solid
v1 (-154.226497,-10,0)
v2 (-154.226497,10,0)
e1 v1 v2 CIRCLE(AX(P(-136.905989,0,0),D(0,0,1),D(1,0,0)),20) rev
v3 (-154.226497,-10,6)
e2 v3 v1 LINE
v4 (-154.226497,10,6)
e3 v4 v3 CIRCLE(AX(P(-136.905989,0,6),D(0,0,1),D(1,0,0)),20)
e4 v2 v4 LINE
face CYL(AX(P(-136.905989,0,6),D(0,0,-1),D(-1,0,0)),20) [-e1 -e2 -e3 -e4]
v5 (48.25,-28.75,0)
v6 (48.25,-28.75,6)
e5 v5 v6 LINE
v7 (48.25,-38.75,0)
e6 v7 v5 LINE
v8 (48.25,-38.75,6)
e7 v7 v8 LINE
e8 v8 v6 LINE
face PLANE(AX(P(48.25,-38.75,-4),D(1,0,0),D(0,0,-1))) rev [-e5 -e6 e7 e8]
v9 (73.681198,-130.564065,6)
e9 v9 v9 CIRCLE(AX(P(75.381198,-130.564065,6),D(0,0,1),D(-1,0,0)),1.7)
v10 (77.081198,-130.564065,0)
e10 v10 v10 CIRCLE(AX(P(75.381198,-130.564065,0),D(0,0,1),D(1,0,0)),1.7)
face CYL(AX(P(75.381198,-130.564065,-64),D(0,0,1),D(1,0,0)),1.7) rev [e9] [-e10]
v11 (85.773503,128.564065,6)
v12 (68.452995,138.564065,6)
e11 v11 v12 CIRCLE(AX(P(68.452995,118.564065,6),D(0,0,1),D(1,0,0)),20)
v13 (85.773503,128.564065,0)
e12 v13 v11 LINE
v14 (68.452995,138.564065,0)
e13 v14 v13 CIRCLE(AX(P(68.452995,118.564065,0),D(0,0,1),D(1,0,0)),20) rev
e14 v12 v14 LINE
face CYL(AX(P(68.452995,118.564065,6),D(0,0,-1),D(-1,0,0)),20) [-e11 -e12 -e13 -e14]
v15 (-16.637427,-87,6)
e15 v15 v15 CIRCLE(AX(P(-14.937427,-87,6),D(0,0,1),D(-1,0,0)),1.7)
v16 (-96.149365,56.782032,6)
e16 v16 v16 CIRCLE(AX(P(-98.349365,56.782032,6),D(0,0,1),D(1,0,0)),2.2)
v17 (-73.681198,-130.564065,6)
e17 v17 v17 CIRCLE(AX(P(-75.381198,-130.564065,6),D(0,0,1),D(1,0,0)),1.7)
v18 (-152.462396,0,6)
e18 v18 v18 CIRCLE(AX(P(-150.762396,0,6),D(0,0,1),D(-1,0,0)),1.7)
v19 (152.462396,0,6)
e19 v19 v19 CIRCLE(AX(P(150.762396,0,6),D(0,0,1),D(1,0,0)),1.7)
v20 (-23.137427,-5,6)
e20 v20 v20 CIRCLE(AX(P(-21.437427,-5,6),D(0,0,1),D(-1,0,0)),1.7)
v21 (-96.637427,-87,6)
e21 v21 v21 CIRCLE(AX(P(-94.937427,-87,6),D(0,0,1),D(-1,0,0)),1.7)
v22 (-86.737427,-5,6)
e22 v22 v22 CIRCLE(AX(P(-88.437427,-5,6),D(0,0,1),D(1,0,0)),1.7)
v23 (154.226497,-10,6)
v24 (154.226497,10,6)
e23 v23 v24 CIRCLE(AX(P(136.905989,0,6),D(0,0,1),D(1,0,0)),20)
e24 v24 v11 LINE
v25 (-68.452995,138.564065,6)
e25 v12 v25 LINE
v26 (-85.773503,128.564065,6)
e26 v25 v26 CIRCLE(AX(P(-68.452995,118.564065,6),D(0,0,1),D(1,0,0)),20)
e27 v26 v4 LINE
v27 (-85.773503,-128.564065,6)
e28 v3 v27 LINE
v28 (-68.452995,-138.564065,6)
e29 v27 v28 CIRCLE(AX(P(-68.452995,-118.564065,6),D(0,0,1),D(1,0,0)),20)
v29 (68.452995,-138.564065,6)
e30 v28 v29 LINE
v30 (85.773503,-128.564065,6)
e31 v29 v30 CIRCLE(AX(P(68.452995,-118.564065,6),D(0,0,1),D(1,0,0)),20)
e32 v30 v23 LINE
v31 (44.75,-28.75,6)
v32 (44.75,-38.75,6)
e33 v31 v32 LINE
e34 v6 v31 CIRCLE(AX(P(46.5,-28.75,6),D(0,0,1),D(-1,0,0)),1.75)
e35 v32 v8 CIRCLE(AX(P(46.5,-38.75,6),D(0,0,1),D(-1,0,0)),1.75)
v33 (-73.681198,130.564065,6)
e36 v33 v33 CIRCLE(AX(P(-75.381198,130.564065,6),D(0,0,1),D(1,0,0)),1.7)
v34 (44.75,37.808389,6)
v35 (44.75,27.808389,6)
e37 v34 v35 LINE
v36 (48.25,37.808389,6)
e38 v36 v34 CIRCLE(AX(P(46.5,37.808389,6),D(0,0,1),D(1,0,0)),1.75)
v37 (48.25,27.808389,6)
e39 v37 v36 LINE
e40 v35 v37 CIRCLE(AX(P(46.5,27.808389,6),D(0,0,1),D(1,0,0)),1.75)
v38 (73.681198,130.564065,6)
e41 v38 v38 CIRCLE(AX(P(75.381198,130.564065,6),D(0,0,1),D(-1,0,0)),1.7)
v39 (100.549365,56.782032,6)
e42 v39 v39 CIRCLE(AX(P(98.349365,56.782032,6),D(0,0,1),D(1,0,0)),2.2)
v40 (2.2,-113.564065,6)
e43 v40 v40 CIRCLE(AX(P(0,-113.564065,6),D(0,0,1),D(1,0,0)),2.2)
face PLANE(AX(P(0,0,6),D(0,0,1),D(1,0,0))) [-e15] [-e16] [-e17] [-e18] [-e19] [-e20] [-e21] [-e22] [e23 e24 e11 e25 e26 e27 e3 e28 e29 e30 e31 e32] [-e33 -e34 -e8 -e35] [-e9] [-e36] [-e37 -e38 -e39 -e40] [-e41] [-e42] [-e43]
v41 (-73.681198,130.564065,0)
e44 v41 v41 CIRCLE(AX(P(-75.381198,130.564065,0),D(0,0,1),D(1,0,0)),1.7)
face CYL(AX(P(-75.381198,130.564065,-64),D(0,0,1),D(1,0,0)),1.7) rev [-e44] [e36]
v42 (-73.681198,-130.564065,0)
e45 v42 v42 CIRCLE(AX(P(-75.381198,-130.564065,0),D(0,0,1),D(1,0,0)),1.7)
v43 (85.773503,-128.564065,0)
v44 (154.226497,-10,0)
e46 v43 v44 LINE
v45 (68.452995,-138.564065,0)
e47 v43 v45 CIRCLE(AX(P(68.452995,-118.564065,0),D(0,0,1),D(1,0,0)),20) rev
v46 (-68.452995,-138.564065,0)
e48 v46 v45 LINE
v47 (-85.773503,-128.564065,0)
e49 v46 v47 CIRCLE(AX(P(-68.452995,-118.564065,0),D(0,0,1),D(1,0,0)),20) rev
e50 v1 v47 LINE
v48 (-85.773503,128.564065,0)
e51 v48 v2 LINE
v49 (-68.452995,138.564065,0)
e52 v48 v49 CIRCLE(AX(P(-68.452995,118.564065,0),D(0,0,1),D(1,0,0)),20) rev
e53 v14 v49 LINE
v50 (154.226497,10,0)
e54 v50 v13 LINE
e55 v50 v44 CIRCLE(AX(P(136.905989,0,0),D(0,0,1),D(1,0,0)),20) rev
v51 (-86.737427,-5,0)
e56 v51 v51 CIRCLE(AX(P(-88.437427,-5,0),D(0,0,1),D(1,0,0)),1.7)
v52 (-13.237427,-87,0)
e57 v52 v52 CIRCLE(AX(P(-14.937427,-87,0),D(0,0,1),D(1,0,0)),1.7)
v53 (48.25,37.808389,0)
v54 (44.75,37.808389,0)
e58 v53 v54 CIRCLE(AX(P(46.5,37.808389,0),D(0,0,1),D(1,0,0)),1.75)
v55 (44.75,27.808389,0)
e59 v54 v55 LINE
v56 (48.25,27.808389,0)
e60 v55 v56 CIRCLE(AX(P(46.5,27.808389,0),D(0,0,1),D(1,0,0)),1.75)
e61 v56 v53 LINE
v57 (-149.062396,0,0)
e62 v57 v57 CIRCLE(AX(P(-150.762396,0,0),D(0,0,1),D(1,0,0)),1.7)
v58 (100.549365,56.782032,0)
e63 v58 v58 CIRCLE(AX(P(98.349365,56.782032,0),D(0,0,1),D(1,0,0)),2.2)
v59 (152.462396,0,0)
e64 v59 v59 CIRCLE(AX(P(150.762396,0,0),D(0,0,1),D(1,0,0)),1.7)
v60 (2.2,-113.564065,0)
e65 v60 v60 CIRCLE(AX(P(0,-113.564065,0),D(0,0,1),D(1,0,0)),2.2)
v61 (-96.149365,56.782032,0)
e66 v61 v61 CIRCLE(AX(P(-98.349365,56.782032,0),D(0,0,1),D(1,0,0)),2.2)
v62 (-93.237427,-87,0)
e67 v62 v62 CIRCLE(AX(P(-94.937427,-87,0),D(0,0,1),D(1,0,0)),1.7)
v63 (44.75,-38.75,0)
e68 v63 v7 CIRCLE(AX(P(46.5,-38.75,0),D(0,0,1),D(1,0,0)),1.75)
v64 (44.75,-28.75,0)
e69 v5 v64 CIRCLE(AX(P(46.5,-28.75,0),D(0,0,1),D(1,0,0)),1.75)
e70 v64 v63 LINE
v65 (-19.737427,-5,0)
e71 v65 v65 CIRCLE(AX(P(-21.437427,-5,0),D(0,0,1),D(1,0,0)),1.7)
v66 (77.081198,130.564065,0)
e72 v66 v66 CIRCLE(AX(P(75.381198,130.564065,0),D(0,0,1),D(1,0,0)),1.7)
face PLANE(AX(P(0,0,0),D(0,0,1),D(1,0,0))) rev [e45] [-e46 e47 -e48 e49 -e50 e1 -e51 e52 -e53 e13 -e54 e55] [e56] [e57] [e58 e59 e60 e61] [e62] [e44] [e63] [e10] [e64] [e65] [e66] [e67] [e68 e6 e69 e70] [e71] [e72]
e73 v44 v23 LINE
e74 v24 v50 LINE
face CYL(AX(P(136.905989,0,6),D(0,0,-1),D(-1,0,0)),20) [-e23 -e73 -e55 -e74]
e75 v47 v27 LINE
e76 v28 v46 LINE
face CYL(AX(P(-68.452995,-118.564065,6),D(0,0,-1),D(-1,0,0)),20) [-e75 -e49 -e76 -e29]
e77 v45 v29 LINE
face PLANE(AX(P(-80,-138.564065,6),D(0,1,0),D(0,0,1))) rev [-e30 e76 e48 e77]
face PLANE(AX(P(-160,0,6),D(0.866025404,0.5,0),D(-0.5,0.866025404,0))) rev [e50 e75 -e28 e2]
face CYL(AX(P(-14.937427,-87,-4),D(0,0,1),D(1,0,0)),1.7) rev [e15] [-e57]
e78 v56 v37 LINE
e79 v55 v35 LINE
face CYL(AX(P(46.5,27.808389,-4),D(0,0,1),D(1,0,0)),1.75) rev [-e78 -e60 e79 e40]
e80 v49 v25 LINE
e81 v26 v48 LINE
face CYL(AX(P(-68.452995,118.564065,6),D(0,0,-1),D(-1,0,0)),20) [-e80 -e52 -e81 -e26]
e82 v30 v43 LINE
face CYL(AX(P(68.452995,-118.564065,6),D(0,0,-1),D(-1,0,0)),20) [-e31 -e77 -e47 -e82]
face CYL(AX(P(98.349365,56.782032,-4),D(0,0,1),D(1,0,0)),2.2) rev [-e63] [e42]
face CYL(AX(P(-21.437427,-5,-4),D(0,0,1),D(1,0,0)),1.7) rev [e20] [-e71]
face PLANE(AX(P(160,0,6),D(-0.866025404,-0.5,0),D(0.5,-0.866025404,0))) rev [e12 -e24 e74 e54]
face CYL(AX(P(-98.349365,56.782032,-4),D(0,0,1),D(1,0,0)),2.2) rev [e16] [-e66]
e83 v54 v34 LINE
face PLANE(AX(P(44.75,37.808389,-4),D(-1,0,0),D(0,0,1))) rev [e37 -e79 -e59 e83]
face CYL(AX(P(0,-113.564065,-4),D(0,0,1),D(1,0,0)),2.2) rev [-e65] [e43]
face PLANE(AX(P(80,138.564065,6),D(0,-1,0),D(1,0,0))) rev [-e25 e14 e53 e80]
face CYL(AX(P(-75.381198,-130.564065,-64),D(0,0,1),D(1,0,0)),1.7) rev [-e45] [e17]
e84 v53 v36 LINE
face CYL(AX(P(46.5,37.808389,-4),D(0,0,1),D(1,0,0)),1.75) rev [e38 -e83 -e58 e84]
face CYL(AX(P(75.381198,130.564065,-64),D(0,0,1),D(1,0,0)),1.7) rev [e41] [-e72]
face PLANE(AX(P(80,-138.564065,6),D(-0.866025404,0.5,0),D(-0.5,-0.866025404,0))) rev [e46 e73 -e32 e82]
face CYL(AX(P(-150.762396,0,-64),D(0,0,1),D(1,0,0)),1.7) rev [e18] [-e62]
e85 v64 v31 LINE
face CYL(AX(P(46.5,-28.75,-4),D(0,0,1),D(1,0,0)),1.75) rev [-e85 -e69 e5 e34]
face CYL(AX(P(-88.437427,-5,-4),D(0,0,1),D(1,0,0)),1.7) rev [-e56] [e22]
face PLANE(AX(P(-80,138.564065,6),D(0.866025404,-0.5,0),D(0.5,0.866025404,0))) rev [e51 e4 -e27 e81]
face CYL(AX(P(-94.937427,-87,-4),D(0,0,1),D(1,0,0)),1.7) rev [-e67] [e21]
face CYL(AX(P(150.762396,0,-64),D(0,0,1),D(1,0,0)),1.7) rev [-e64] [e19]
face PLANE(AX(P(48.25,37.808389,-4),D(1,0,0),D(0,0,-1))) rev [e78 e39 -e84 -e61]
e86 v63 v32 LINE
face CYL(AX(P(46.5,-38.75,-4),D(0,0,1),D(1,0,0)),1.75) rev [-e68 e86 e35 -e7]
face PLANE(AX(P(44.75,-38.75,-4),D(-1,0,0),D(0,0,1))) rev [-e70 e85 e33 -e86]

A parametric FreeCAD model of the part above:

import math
import FreeCAD as App
import Part
import Sketcher
Q = App.Units.Quantity


def edges_at(feature, points):
    """Names of the edges that pass closest to the given points."""
    edges = feature.Shape.Edges
    near = lambda p: min(range(len(edges)), key=lambda i: edges[i].distToShape(Part.Vertex(*p))[0])
    return sorted({f"Edge{near(p) + 1}" for p in points})


def add_polygon(sketch, points):
    """Adds a closed chain of lines whose ends are joined by coincident constraints."""
    first, n = sketch.GeometryCount, len(points)
    for a, b in zip(points, points[1:] + points[:1]):
        sketch.addGeometry(Part.LineSegment(App.Vector(*a, 0), App.Vector(*b, 0)), False)
    for i in range(n):
        sketch.addConstraint(Sketcher.Constraint("Coincident", first + i, 2, first + (i + 1) % n, 1))

doc = App.newDocument("Part")
params = doc.addObject("Spreadsheet::Sheet", "Params")
for row, (alias, value) in enumerate([
    ("sketch1_width", "160 mm"),
    ("sketch1_length", "160 mm"),
    ("pad1_length", "6 mm"),
    ("fillet_radius", "20 mm"),
    ("sketch2_diameter", "3.4 mm"),
    ("pocket1_length", "70 mm"),
    ("sketch3_diameter", "3.4 mm"),
    ("pocket2_length", "10 mm"),
    ("sketch4_height", "10 mm"),
    ("sketch4_radius", "1.75 mm"),
    ("pocket3_length", "10 mm"),
    ("sketch5_diameter", "4.4 mm"),
    ("pocket4_length", "10 mm"),
], start=1):
    params.set(f"A{row}", alias)
    params.set(f"B{row}", "=" + value)
    params.setAlias(f"B{row}", alias)

body = doc.addObject("PartDesign::Body", "Body")

# Sketch on XY plane
sketch1 = doc.addObject("Sketcher::SketchObject", "Sketch")
body.addObject(sketch1)
sketch1.AttachmentSupport = (doc.XY_Plane, [""])
sketch1.MapMode = "FlatFace"
add_polygon(sketch1, [(80, 138.564065), (-80, 138.564065), (-160, 0), (-80, -138.564065), (80, -138.564065), (160, 0)])  # lines 0-5
sketch1.addConstraint([
    Sketcher.Constraint("Horizontal", 0),
    Sketcher.Constraint("Horizontal", 3),
    Sketcher.Constraint("Symmetric", 0, 2, 3, 2, -1, 1),
    Sketcher.Constraint("Symmetric", 1, 2, 4, 2, -1, 1),
    Sketcher.Constraint("PointOnObject", 1, 2, -1),
    Sketcher.Constraint("Parallel", 2, 5),
    Sketcher.Constraint("Vertical", 0, 2, 2, 2),
    Sketcher.Constraint("DistanceX", 0, 2, 0, 1, 160.0),
    Sketcher.Constraint("Angle", 1, Q("-120 deg")),
    Sketcher.Constraint("Distance", 1, 160.0),
])
sketch1.setExpression("Constraints[13]", "Params.sketch1_width")
sketch1.setExpression("Constraints[15]", "Params.sketch1_length")
pad1 = doc.addObject("PartDesign::Pad", "Pad")
body.addObject(pad1)
pad1.Profile = sketch1
pad1.setExpression("Length", "Params.pad1_length")
doc.recompute()

fillet = doc.addObject("PartDesign::Fillet", "Fillet")
body.addObject(fillet)
fillet.Base = (pad1, edges_at(pad1, [
    (160, 0, 3),
    (80, -138.564, 3),
    (-80, -138.564, 3),
    (-160, 0, 3),
    (-80, 138.564, 3),
    (80, 138.564, 3),
]))
fillet.setExpression("Radius", "Params.fillet_radius")

# Sketch on XY plane
sketch2 = doc.addObject("Sketcher::SketchObject", "Sketch001")
body.addObject(sketch2)
sketch2.AttachmentSupport = (doc.XY_Plane, [""])
sketch2.MapMode = "FlatFace"
sketch2.AttachmentOffset = App.Placement(App.Vector(0, 0, 6), App.Rotation())
sketch2.addGeometry([
    Part.Circle(App.Vector(-75.381198, -130.564065, 0), App.Vector(0, 0, 1), 1.7),  # 0
    Part.Circle(App.Vector(75.381198, -130.564065, 0), App.Vector(0, 0, 1), 1.7),  # 1
    Part.Circle(App.Vector(-75.381198, 130.564065, 0), App.Vector(0, 0, 1), 1.7),  # 2
    Part.Circle(App.Vector(-150.762396, 0, 0), App.Vector(0, 0, 1), 1.7),  # 3
    Part.Circle(App.Vector(150.762396, 0, 0), App.Vector(0, 0, 1), 1.7),  # 4
    Part.Circle(App.Vector(75.381198, 130.564065, 0), App.Vector(0, 0, 1), 1.7),  # 5
], False)
sketch2.addConstraint([
    Sketcher.Constraint("Equal", 0, 1),
    Sketcher.Constraint("Equal", 1, 2),
    Sketcher.Constraint("Equal", 2, 3),
    Sketcher.Constraint("Equal", 3, 4),
    Sketcher.Constraint("Equal", 4, 5),
    Sketcher.Constraint("Symmetric", 1, 3, 2, 3, -1, 1),
    Sketcher.Constraint("Symmetric", 3, 3, 4, 3, -1, 1),
    Sketcher.Constraint("Symmetric", 0, 3, 5, 3, -1, 1),
    Sketcher.Constraint("Symmetric", 0, 3, 1, 3, -2),
    Sketcher.Constraint("PointOnObject", 3, 3, -1),
    Sketcher.Constraint("Diameter", 0, 3.4),
    Sketcher.Constraint("DistanceY", 0, 3, 2, 3, 261.128129),
    Sketcher.Constraint("DistanceX", 3, 3, 4, 3, 301.524791),
    Sketcher.Constraint("DistanceX", 0, 3, -1, 1, 75.381198),
])
sketch2.setExpression("Constraints[10]", "Params.sketch2_diameter")
pocket1 = doc.addObject("PartDesign::Pocket", "Pocket")
body.addObject(pocket1)
pocket1.Profile = sketch2
pocket1.setExpression("Length", "Params.pocket1_length")

# Sketch on XY plane
sketch3 = doc.addObject("Sketcher::SketchObject", "Sketch002")
body.addObject(sketch3)
sketch3.AttachmentSupport = (doc.XY_Plane, [""])
sketch3.MapMode = "FlatFace"
sketch3.AttachmentOffset = App.Placement(App.Vector(0, 0, 6), App.Rotation())
sketch3.addGeometry([
    Part.Circle(App.Vector(-88.437427, -5, 0), App.Vector(0, 0, 1), 1.7),
    Part.Circle(App.Vector(-21.437427, -5, 0), App.Vector(0, 0, 1), 1.7),
    Part.Circle(App.Vector(-14.937427, -87, 0), App.Vector(0, 0, 1), 1.7),
    Part.Circle(App.Vector(-94.937427, -87, 0), App.Vector(0, 0, 1), 1.7),
], False)
sketch3.addConstraint([
    Sketcher.Constraint("Equal", 0, 1),
    Sketcher.Constraint("Equal", 1, 2),
    Sketcher.Constraint("Equal", 2, 3),
    Sketcher.Constraint("Horizontal", 0, 3, 1, 3),
    Sketcher.Constraint("Horizontal", 2, 3, 3, 3),
    Sketcher.Constraint("Diameter", 0, 3.4),
    Sketcher.Constraint("DistanceY", 0, 3, -1, 1, 5.0),
    Sketcher.Constraint("DistanceY", 2, 3, -1, 1, 87.0),
    Sketcher.Constraint("DistanceX", 0, 3, 1, 3, 67.0),
    Sketcher.Constraint("DistanceX", 3, 3, 2, 3, 80.0),
    Sketcher.Constraint("DistanceX", 1, 3, 2, 3, 6.5),
    Sketcher.Constraint("DistanceX", 0, 3, -1, 1, 88.437427),
])
sketch3.setExpression("Constraints[5]", "Params.sketch3_diameter")
pocket2 = doc.addObject("PartDesign::Pocket", "Pocket001")
body.addObject(pocket2)
pocket2.Profile = sketch3
pocket2.setExpression("Length", "Params.pocket2_length")

# Sketch on XY plane
sketch4 = doc.addObject("Sketcher::SketchObject", "Sketch003")
body.addObject(sketch4)
sketch4.AttachmentSupport = (doc.XY_Plane, [""])
sketch4.MapMode = "FlatFace"
sketch4.AttachmentOffset = App.Placement(App.Vector(0, 0, 6), App.Rotation())
sketch4.addGeometry([
    Part.LineSegment(App.Vector(48.25, 27.808389, 0), App.Vector(48.25, 37.808389, 0)),  # 0
    Part.ArcOfCircle(Part.Circle(App.Vector(46.5, 37.808389, 0), App.Vector(0, 0, 1), 1.75), math.radians(0), math.radians(180)),  # 1
    Part.LineSegment(App.Vector(44.75, 37.808389, 0), App.Vector(44.75, 27.808389, 0)),  # 2
    Part.ArcOfCircle(Part.Circle(App.Vector(46.5, 27.808389, 0), App.Vector(0, 0, 1), 1.75), math.radians(180), math.radians(360)),  # 3
    Part.LineSegment(App.Vector(48.25, -38.75, 0), App.Vector(48.25, -28.75, 0)),  # 4
    Part.ArcOfCircle(Part.Circle(App.Vector(46.5, -28.75, 0), App.Vector(0, 0, 1), 1.75), math.radians(0), math.radians(180)),  # 5
    Part.LineSegment(App.Vector(44.75, -28.75, 0), App.Vector(44.75, -38.75, 0)),  # 6
    Part.ArcOfCircle(Part.Circle(App.Vector(46.5, -38.75, 0), App.Vector(0, 0, 1), 1.75), math.radians(180), math.radians(360)),  # 7
], False)
sketch4.addConstraint([
    Sketcher.Constraint("Tangent", 0, 2, 1, 1),
    Sketcher.Constraint("Tangent", 1, 2, 2, 1),
    Sketcher.Constraint("Tangent", 2, 2, 3, 1),
    Sketcher.Constraint("Tangent", 3, 2, 0, 1),
    Sketcher.Constraint("Tangent", 4, 2, 5, 1),
    Sketcher.Constraint("Tangent", 5, 2, 6, 1),
    Sketcher.Constraint("Tangent", 6, 2, 7, 1),
    Sketcher.Constraint("Tangent", 7, 2, 4, 1),
    Sketcher.Constraint("Vertical", 0),
    Sketcher.Constraint("Vertical", 2),
    Sketcher.Constraint("Vertical", 4),
    Sketcher.Constraint("Vertical", 6),
    Sketcher.Constraint("Equal", 3, 5),
    Sketcher.Constraint("Vertical", 3, 3, 5, 3),
    Sketcher.Constraint("Equal", 2, 4),
    Sketcher.Constraint("DistanceY", 0, 1, 0, 2, 10.0),
    Sketcher.Constraint("Radius", 1, 1.75),
    Sketcher.Constraint("DistanceX", -1, 1, 1, 3, 46.5),
    Sketcher.Constraint("DistanceY", 5, 3, -1, 1, 28.75),
    Sketcher.Constraint("DistanceY", -1, 1, 1, 3, 37.808389),
])
sketch4.setExpression("Constraints[15]", "Params.sketch4_height")
sketch4.setExpression("Constraints[16]", "Params.sketch4_radius")
pocket3 = doc.addObject("PartDesign::Pocket", "Pocket002")
body.addObject(pocket3)
pocket3.Profile = sketch4
pocket3.setExpression("Length", "Params.pocket3_length")

# Sketch on XY plane
sketch5 = doc.addObject("Sketcher::SketchObject", "Sketch004")
body.addObject(sketch5)
sketch5.AttachmentSupport = (doc.XY_Plane, [""])
sketch5.MapMode = "FlatFace"
sketch5.AttachmentOffset = App.Placement(App.Vector(0, 0, 6), App.Rotation())
sketch5.addGeometry([
    Part.Circle(App.Vector(0, -113.564065, 0), App.Vector(0, 0, 1), 2.2),
    Part.Circle(App.Vector(-98.349365, 56.782032, 0), App.Vector(0, 0, 1), 2.2),
    Part.Circle(App.Vector(98.349365, 56.782032, 0), App.Vector(0, 0, 1), 2.2),
], False)
sketch5.addConstraint([
    Sketcher.Constraint("Equal", 0, 1),
    Sketcher.Constraint("Equal", 1, 2),
    Sketcher.Constraint("Symmetric", 1, 3, 2, 3, -2),
    Sketcher.Constraint("PointOnObject", 0, 3, -2),
    Sketcher.Constraint("Diameter", 0, 4.4),
    Sketcher.Constraint("DistanceX", 1, 3, 2, 3, 196.69873),
    Sketcher.Constraint("DistanceY", 0, 3, -1, 1, 113.564065),
    Sketcher.Constraint("DistanceY", -1, 1, 1, 3, 56.782032),
])
sketch5.setExpression("Constraints[4]", "Params.sketch5_diameter")
pocket4 = doc.addObject("PartDesign::Pocket", "Pocket003")
body.addObject(pocket4)
pocket4.Profile = sketch5
pocket4.setExpression("Length", "Params.pocket4_length")

doc.recompute()
